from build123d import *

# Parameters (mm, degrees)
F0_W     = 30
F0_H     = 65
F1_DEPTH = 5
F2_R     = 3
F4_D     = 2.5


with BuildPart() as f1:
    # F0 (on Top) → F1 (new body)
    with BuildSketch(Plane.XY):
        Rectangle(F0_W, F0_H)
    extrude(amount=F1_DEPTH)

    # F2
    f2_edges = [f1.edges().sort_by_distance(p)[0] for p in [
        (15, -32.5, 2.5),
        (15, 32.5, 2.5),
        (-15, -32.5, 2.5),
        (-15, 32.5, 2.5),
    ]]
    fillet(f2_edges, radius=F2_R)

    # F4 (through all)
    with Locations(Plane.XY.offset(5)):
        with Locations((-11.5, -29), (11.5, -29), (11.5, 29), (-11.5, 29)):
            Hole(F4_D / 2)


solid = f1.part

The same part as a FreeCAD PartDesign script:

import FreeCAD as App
import Part
import Sketcher

V = App.Vector
Q = App.Units.Quantity


def edges_at(feature, points):
    """Names of the edges that pass closest to the given points."""
    edges = feature.Shape.Edges
    near = lambda p: min(range(len(edges)), key=lambda i: edges[i].distToShape(Part.Vertex(*p))[0])
    return sorted({f"Edge{near(p) + 1}" for p in points})


def add_polygon(sketch, points):
    """Adds a closed chain of lines whose ends are joined by coincident constraints."""
    first, n = sketch.GeometryCount, len(points)
    for a, b in zip(points, points[1:] + points[:1]):
        sketch.addGeometry(Part.LineSegment(App.Vector(*a, 0), App.Vector(*b, 0)), False)
    for i in range(n):
        sketch.addConstraint(Sketcher.Constraint("Coincident", first + i, 2, first + (i + 1) % n, 1))

doc = App.newDocument("Part")
params = doc.addObject("Spreadsheet::Sheet", "Params")
for row, (alias, value) in enumerate([
    ("sketch1_width", "30 mm"),
    ("sketch1_height", "65 mm"),
    ("pad1_length", "5 mm"),
    ("fillet_radius", "3 mm"),
    ("sketch2_diameter", "2.5 mm"),
    ("hole_diameter", "2.5 mm"),
], start=1):
    params.set(f"A{row}", alias)
    params.set(f"B{row}", "=" + value)
    params.setAlias(f"B{row}", alias)

body = doc.addObject("PartDesign::Body", "Body")

# Sketch on XY plane
sketch1 = body.newObject("Sketcher::SketchObject", "Sketch")
sketch1.AttachmentSupport = (doc.getObject("XY_Plane"), [""])
sketch1.MapMode = "FlatFace"
add_polygon(sketch1, [(-15, 32), (-15, -32), (15, -32), (15, 32)])  # lines 0-3
sketch1.addConstraint(Sketcher.Constraint("Vertical", 0))
sketch1.addConstraint(Sketcher.Constraint("Horizontal", 1))
sketch1.addConstraint(Sketcher.Constraint("Vertical", 2))
sketch1.addConstraint(Sketcher.Constraint("Horizontal", 3))
sketch1.addConstraint(Sketcher.Constraint("Symmetric", 0, 2, 2, 2, -1, 1))
sketch1.addConstraint(Sketcher.Constraint("DistanceX", 1, 1, 1, 2, Q("30 mm")))
sketch1.addConstraint(Sketcher.Constraint("DistanceY", 0, 2, 0, 1, Q("65 mm")))
sketch1.setExpression("Constraints[9]", "Params.sketch1_width")
sketch1.setExpression("Constraints[10]", "Params.sketch1_height")
pad1 = body.newObject("PartDesign::Pad", "Pad")
pad1.Profile = sketch1
pad1.setExpression("Length", "Params.pad1_length")
doc.recompute()

fillet = body.newObject("PartDesign::Fillet", "Fillet")
fillet.Base = (pad1, edges_at(pad1, [
    (15, -32.5, 2.5),
    (15, 32.5, 2.5),
    (-15, -32.5, 2.5),
    (-15, 32.5, 2.5),
]))
fillet.setExpression("Radius", "Params.fillet_radius")

# Sketch on XY plane
sketch2 = body.newObject("Sketcher::SketchObject", "Sketch001")
sketch2.AttachmentSupport = (doc.getObject("XY_Plane"), [""])
sketch2.MapMode = "FlatFace"
sketch2.AttachmentOffset = App.Placement(V(0, 0, 5), App.Rotation())
sketch2.addGeometry(Part.Circle(V(-11.5, -29, 0), V(0, 0, 1), 1.2), False)
sketch2.addGeometry(Part.Circle(V(11.5, -29, 0), V(0, 0, 1), 1.2), False)
sketch2.addGeometry(Part.Circle(V(11.5, 29, 0), V(0, 0, 1), 1.2), False)
sketch2.addGeometry(Part.Circle(V(-11.5, 29, 0), V(0, 0, 1), 1.2), False)
sketch2.addConstraint(Sketcher.Constraint("Equal", 0, 1))
sketch2.addConstraint(Sketcher.Constraint("Equal", 1, 2))
sketch2.addConstraint(Sketcher.Constraint("Equal", 2, 3))
sketch2.addConstraint(Sketcher.Constraint("Symmetric", 0, 3, 2, 3, -1, 1))
sketch2.addConstraint(Sketcher.Constraint("Symmetric", 1, 3, 3, 3, -1, 1))
sketch2.addConstraint(Sketcher.Constraint("Symmetric", 0, 3, 1, 3, -2))
sketch2.addConstraint(Sketcher.Constraint("Diameter", 0, Q("2.5 mm")))
sketch2.addConstraint(Sketcher.Constraint("DistanceY", 0, 3, -1, 1, Q("29 mm")))
sketch2.addConstraint(Sketcher.Constraint("DistanceX", 0, 3, 1, 3, Q("23 mm")))
sketch2.setExpression("Constraints[6]", "Params.sketch2_diameter")
doc.recompute()
hole = body.newObject("PartDesign::Hole", "Hole")
hole.Profile = sketch2
hole.ThreadType = "None"
hole.setExpression("Diameter", "Params.hole_diameter")
hole.DepthType = "ThroughAll"

doc.recompute()
